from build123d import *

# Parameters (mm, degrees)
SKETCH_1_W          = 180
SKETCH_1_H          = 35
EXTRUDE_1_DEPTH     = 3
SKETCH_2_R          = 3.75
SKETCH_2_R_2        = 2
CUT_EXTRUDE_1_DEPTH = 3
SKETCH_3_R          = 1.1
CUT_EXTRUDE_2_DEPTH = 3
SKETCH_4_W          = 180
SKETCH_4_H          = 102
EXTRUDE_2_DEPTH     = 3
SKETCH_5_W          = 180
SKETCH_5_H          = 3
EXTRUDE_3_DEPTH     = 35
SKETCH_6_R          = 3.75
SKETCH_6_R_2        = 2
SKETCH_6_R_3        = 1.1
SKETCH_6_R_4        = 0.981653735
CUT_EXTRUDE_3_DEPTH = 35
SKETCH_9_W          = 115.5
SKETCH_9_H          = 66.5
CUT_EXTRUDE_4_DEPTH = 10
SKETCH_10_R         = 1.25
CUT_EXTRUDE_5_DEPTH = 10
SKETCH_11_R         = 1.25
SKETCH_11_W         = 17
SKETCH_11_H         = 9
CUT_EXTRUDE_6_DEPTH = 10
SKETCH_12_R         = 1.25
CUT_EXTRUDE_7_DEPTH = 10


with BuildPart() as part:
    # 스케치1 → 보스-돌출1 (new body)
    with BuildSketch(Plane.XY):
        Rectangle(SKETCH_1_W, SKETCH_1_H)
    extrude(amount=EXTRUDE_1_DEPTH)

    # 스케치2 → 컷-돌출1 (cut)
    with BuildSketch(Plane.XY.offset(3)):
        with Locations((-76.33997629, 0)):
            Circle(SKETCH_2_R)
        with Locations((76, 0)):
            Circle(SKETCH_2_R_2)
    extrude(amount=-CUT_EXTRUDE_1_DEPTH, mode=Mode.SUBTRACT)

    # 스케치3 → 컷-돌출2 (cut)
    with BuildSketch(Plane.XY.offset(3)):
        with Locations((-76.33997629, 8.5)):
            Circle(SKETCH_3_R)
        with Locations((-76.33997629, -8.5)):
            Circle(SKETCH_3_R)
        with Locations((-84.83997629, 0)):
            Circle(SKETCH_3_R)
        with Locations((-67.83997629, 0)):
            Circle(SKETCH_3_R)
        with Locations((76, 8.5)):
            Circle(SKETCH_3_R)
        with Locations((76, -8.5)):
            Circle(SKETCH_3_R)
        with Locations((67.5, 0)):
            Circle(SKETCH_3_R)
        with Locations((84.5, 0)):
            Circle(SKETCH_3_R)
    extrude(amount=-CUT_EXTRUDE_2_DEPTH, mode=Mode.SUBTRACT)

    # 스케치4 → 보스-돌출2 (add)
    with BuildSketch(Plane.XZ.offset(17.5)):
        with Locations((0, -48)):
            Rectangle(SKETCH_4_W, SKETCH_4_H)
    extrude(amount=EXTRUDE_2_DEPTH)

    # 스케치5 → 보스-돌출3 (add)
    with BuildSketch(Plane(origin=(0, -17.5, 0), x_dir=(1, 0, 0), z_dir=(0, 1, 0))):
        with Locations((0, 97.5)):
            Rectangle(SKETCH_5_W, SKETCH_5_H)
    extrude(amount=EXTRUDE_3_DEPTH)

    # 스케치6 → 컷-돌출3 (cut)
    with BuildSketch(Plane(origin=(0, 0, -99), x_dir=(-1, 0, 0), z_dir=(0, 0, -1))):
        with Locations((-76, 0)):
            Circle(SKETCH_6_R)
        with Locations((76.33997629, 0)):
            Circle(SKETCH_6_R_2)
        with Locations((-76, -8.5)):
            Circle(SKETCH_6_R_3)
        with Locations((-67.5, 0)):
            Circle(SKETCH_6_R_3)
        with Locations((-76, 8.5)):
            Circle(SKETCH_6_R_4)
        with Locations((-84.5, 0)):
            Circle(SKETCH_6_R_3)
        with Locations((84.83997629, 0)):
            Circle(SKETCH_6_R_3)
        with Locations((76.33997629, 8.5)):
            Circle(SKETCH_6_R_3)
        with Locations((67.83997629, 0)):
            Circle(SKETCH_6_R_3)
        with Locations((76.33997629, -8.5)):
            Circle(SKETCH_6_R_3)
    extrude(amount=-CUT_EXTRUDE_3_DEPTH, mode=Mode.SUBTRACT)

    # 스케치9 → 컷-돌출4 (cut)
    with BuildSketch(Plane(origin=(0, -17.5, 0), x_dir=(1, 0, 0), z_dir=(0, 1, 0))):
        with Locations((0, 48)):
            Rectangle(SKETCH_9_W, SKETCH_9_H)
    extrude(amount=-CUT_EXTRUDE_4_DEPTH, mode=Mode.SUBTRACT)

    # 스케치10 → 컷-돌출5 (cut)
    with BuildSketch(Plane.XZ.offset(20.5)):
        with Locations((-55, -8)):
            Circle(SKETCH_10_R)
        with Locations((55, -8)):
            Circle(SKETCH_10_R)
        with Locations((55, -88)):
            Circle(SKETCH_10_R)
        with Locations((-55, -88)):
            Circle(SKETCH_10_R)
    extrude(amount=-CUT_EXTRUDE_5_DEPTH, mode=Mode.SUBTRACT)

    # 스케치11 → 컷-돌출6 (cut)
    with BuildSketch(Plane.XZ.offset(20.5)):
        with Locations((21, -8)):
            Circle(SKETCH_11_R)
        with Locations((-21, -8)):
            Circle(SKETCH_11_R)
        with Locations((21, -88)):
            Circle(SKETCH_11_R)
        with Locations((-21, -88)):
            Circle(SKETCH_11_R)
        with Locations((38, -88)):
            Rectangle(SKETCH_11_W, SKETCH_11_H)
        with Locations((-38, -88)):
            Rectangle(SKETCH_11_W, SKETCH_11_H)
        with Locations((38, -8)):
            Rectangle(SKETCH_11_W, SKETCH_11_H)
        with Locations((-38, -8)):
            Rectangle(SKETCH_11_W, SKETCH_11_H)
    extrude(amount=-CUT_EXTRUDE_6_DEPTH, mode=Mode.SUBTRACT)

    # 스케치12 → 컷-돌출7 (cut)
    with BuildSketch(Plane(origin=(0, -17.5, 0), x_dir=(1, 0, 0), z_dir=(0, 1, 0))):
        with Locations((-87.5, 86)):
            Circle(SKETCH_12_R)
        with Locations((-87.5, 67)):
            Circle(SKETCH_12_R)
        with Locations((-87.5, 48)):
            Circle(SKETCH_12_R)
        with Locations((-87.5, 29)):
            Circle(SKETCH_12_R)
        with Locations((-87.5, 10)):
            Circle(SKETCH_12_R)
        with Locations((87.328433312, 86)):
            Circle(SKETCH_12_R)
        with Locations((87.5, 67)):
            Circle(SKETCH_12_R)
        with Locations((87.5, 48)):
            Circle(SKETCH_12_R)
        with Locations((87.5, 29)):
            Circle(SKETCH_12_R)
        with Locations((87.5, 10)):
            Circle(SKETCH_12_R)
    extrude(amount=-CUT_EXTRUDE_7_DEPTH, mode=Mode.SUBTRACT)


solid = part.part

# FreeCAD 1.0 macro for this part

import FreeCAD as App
import Part
import Sketcher

V = App.Vector
Q = App.Units.Quantity


def add_polygon(sketch, points):
    """Adds a closed chain of lines whose ends are joined by coincident constraints."""
    first, n = sketch.GeometryCount, len(points)
    for a, b in zip(points, points[1:] + points[:1]):
        sketch.addGeometry(Part.LineSegment(App.Vector(*a, 0), App.Vector(*b, 0)), False)
    for i in range(n):
        sketch.addConstraint(Sketcher.Constraint("Coincident", first + i, 2, first + (i + 1) % n, 1))

doc = App.newDocument("Part")
body = doc.addObject("PartDesign::Body", "Body")

# Sketch on XY plane
sketch1 = body.newObject("Sketcher::SketchObject", "Sketch")
sketch1.AttachmentSupport = (doc.getObject("XY_Plane"), [""])
sketch1.MapMode = "FlatFace"
add_polygon(sketch1, [(-90, 18), (-90, -18), (90, -18), (90, 18)])  # lines 0-3
sketch1.addConstraint(Sketcher.Constraint("Vertical", 0))
sketch1.addConstraint(Sketcher.Constraint("Horizontal", 1))
sketch1.addConstraint(Sketcher.Constraint("Vertical", 2))
sketch1.addConstraint(Sketcher.Constraint("Horizontal", 3))
sketch1.addConstraint(Sketcher.Constraint("Symmetric", 0, 2, 2, 2, -1, 1))
sketch1.addConstraint(Sketcher.Constraint("DistanceX", 1, 1, 1, 2, Q("180 mm")))
sketch1.addConstraint(Sketcher.Constraint("DistanceY", 0, 2, 0, 1, Q("35 mm")))
pad1 = body.newObject("PartDesign::Pad", "Pad")
pad1.Profile = sketch1
pad1.Length = 3

# Sketch on XY plane
sketch2 = body.newObject("Sketcher::SketchObject", "Sketch001")
sketch2.AttachmentSupport = (doc.getObject("XY_Plane"), [""])
sketch2.MapMode = "FlatFace"
sketch2.AttachmentOffset = App.Placement(V(0, 0, 3), App.Rotation())
sketch2.addGeometry(Part.Circle(V(-76.3, 0, 0), V(0, 0, 1), 3.8), False)
sketch2.addGeometry(Part.Circle(V(76, 0, 0), V(0, 0, 1), 2), False)
sketch2.addConstraint(Sketcher.Constraint("PointOnObject", 0, 3, -1))
sketch2.addConstraint(Sketcher.Constraint("PointOnObject", 1, 3, -1))
sketch2.addConstraint(Sketcher.Constraint("Diameter", 1, Q("4 mm")))
sketch2.addConstraint(Sketcher.Constraint("Diameter", 0, Q("7.5 mm")))
sketch2.addConstraint(Sketcher.Constraint("DistanceX", -1, 1, 1, 3, Q("76 mm")))
sketch2.addConstraint(Sketcher.Constraint("DistanceX", 0, 3, -1, 1, Q("76.339976 mm")))
pocket1 = body.newObject("PartDesign::Pocket", "Pocket")
pocket1.Profile = sketch2
pocket1.Length = 3

# Sketch on XY plane
sketch3 = body.newObject("Sketcher::SketchObject", "Sketch002")
sketch3.AttachmentSupport = (doc.getObject("XY_Plane"), [""])
sketch3.MapMode = "FlatFace"
sketch3.AttachmentOffset = App.Placement(V(0, 0, 3), App.Rotation())
sketch3.addGeometry(Part.Circle(V(-76.3, 8.5, 0), V(0, 0, 1), 1.1), False)
sketch3.addGeometry(Part.Circle(V(-76.3, -8.5, 0), V(0, 0, 1), 1.1), False)
sketch3.addGeometry(Part.Circle(V(-84.8, 0, 0), V(0, 0, 1), 1.1), False)
sketch3.addGeometry(Part.Circle(V(-67.8, 0, 0), V(0, 0, 1), 1.1), False)
sketch3.addGeometry(Part.Circle(V(76, 8.5, 0), V(0, 0, 1), 1.1), False)
sketch3.addGeometry(Part.Circle(V(76, -8.5, 0), V(0, 0, 1), 1.1), False)
sketch3.addGeometry(Part.Circle(V(67.5, 0, 0), V(0, 0, 1), 1.1), False)
sketch3.addGeometry(Part.Circle(V(84.5, 0, 0), V(0, 0, 1), 1.1), False)
sketch3.addConstraint(Sketcher.Constraint("Equal", 0, 1))
sketch3.addConstraint(Sketcher.Constraint("Equal", 1, 2))
sketch3.addConstraint(Sketcher.Constraint("Equal", 2, 3))
sketch3.addConstraint(Sketcher.Constraint("Equal", 3, 4))
sketch3.addConstraint(Sketcher.Constraint("Equal", 4, 5))
sketch3.addConstraint(Sketcher.Constraint("Equal", 5, 6))
sketch3.addConstraint(Sketcher.Constraint("Equal", 6, 7))
sketch3.addConstraint(Sketcher.Constraint("Symmetric", 0, 3, 1, 3, -1))
sketch3.addConstraint(Sketcher.Constraint("Symmetric", 4, 3, 5, 3, -1))
sketch3.addConstraint(Sketcher.Constraint("PointOnObject", 2, 3, -1))
sketch3.addConstraint(Sketcher.Constraint("PointOnObject", 3, 3, -1))
sketch3.addConstraint(Sketcher.Constraint("PointOnObject", 6, 3, -1))
sketch3.addConstraint(Sketcher.Constraint("PointOnObject", 7, 3, -1))
sketch3.addConstraint(Sketcher.Constraint("Horizontal", 0, 3, 4, 3))
sketch3.addConstraint(Sketcher.Constraint("Diameter", 0, Q("2.2 mm")))
sketch3.addConstraint(Sketcher.Constraint("DistanceX", -1, 1, 4, 3, Q("76 mm")))
sketch3.addConstraint(Sketcher.Constraint("DistanceY", 1, 3, 0, 3, Q("17 mm")))
sketch3.addConstraint(Sketcher.Constraint("DistanceX", 2, 3, 3, 3, Q("17 mm")))
sketch3.addConstraint(Sketcher.Constraint("DistanceX", 6, 3, 7, 3, Q("17 mm")))
sketch3.addConstraint(Sketcher.Constraint("DistanceX", -1, 1, 6, 3, Q("67.5 mm")))
sketch3.addConstraint(Sketcher.Constraint("DistanceX", 2, 3, 0, 3, Q("8.5 mm")))
sketch3.addConstraint(Sketcher.Constraint("DistanceX", 0, 3, -1, 1, Q("76.339976 mm")))
pocket2 = body.newObject("PartDesign::Pocket", "Pocket001")
pocket2.Profile = sketch3
pocket2.Length = 3

# Sketch on XZ plane
sketch4 = body.newObject("Sketcher::SketchObject", "Sketch003")
sketch4.AttachmentSupport = (doc.getObject("XZ_Plane"), [""])
sketch4.MapMode = "FlatFace"
sketch4.AttachmentOffset = App.Placement(V(0, 0, 17.5), App.Rotation())
add_polygon(sketch4, [(-90, 3), (-90, -99), (90, -99), (90, 3)])  # lines 0-3
sketch4.addConstraint(Sketcher.Constraint("Vertical", 0))
sketch4.addConstraint(Sketcher.Constraint("Horizontal", 1))
sketch4.addConstraint(Sketcher.Constraint("Vertical", 2))
sketch4.addConstraint(Sketcher.Constraint("Horizontal", 3))
sketch4.addConstraint(Sketcher.Constraint("DistanceX", 1, 1, 1, 2, Q("180 mm")))
sketch4.addConstraint(Sketcher.Constraint("DistanceY", 0, 2, 0, 1, Q("102 mm")))
sketch4.addConstraint(Sketcher.Constraint("DistanceX", 0, 2, -1, 1, Q("90 mm")))
sketch4.addConstraint(Sketcher.Constraint("DistanceY", 0, 2, -1, 1, Q("99 mm")))
pad2 = body.newObject("PartDesign::Pad", "Pad001")
pad2.Profile = sketch4
pad2.Length = 3

# Sketch on XZ plane
sketch5 = body.newObject("Sketcher::SketchObject", "Sketch004")
sketch5.AttachmentSupport = (doc.getObject("XZ_Plane"), [""])
sketch5.MapMode = "FlatFace"
sketch5.AttachmentOffset = App.Placement(V(0, 0, 17.5), App.Rotation())
add_polygon(sketch5, [(-90, -99), (-90, -96), (90, -96), (90, -99)])  # lines 0-3
sketch5.addConstraint(Sketcher.Constraint("Vertical", 0))
sketch5.addConstraint(Sketcher.Constraint("Horizontal", 1))
sketch5.addConstraint(Sketcher.Constraint("Vertical", 2))
sketch5.addConstraint(Sketcher.Constraint("Horizontal", 3))
sketch5.addConstraint(Sketcher.Constraint("DistanceX", 1, 1, 1, 2, Q("180 mm")))
sketch5.addConstraint(Sketcher.Constraint("DistanceY", 0, 1, 0, 2, Q("3 mm")))
sketch5.addConstraint(Sketcher.Constraint("DistanceX", 0, 2, -1, 1, Q("90 mm")))
sketch5.addConstraint(Sketcher.Constraint("DistanceY", 0, 2, -1, 1, Q("96 mm")))
pad3 = body.newObject("PartDesign::Pad", "Pad002")
pad3.Profile = sketch5
pad3.Length = 35
pad3.Reversed = True

# Sketch on XY plane
sketch6 = body.newObject("Sketcher::SketchObject", "Sketch005")
sketch6.AttachmentSupport = (doc.getObject("XY_Plane"), [""])
sketch6.MapMode = "FlatFace"
sketch6.AttachmentOffset = App.Placement(V(0, 0, -99), App.Rotation())
sketch6.addGeometry(Part.Circle(V(76, 0, 0), V(0, 0, 1), 3.8), False)
sketch6.addGeometry(Part.Circle(V(-76.3, 0, 0), V(0, 0, 1), 2), False)
sketch6.addGeometry(Part.Circle(V(76, -8.5, 0), V(0, 0, 1), 1.1), False)
sketch6.addGeometry(Part.Circle(V(67.5, 0, 0), V(0, 0, 1), 1.1), False)
sketch6.addGeometry(Part.Circle(V(76, 8.5, 0), V(0, 0, 1), 1), False)
sketch6.addGeometry(Part.Circle(V(84.5, 0, 0), V(0, 0, 1), 1.1), False)
sketch6.addGeometry(Part.Circle(V(-84.8, 0, 0), V(0, 0, 1), 1.1), False)
sketch6.addGeometry(Part.Circle(V(-76.3, 8.5, 0), V(0, 0, 1), 1.1), False)
sketch6.addGeometry(Part.Circle(V(-67.8, 0, 0), V(0, 0, 1), 1.1), False)
sketch6.addGeometry(Part.Circle(V(-76.3, -8.5, 0), V(0, 0, 1), 1.1), False)
sketch6.addConstraint(Sketcher.Constraint("Equal", 2, 3))
sketch6.addConstraint(Sketcher.Constraint("Equal", 3, 5))
sketch6.addConstraint(Sketcher.Constraint("Equal", 5, 6))
sketch6.addConstraint(Sketcher.Constraint("Equal", 6, 7))
sketch6.addConstraint(Sketcher.Constraint("Equal", 7, 8))
sketch6.addConstraint(Sketcher.Constraint("Equal", 8, 9))
sketch6.addConstraint(Sketcher.Constraint("Symmetric", 2, 3, 4, 3, -1))
sketch6.addConstraint(Sketcher.Constraint("Symmetric", 7, 3, 9, 3, -1))
sketch6.addConstraint(Sketcher.Constraint("PointOnObject", 0, 3, -1))
sketch6.addConstraint(Sketcher.Constraint("PointOnObject", 1, 3, -1))
sketch6.addConstraint(Sketcher.Constraint("PointOnObject", 3, 3, -1))
sketch6.addConstraint(Sketcher.Constraint("PointOnObject", 5, 3, -1))
sketch6.addConstraint(Sketcher.Constraint("PointOnObject", 6, 3, -1))
sketch6.addConstraint(Sketcher.Constraint("PointOnObject", 8, 3, -1))
sketch6.addConstraint(Sketcher.Constraint("Horizontal", 4, 3, 7, 3))
sketch6.addConstraint(Sketcher.Constraint("Vertical", 0, 3, 2, 3))
sketch6.addConstraint(Sketcher.Constraint("Vertical", 1, 3, 7, 3))
sketch6.addConstraint(Sketcher.Constraint("Diameter", 1, Q("4 mm")))
sketch6.addConstraint(Sketcher.Constraint("Diameter", 0, Q("7.5 mm")))
sketch6.addConstraint(Sketcher.Constraint("Diameter", 2, Q("2.2 mm")))
sketch6.addConstraint(Sketcher.Constraint("DistanceX", -1, 1, 0, 3, Q("76 mm")))
sketch6.addConstraint(Sketcher.Constraint("DistanceY", 2, 3, 4, 3, Q("17 mm")))
sketch6.addConstraint(Sketcher.Constraint("DistanceX", 3, 3, 5, 3, Q("17 mm")))
sketch6.addConstraint(Sketcher.Constraint("DistanceX", 6, 3, 8, 3, Q("17 mm")))
sketch6.addConstraint(Sketcher.Constraint("DistanceX", -1, 1, 3, 3, Q("67.5 mm")))
sketch6.addConstraint(Sketcher.Constraint("DistanceX", 6, 3, 1, 3, Q("8.5 mm")))
sketch6.addConstraint(Sketcher.Constraint("Diameter", 4, Q("1.963307 mm")))
sketch6.addConstraint(Sketcher.Constraint("DistanceX", 1, 3, -1, 1, Q("76.339976 mm")))
pocket3 = body.newObject("PartDesign::Pocket", "Pocket002")
pocket3.Profile = sketch6
pocket3.Length = 35
pocket3.Reversed = True

# Sketch on XZ plane
sketch7 = body.newObject("Sketcher::SketchObject", "Sketch006")
sketch7.AttachmentSupport = (doc.getObject("XZ_Plane"), [""])
sketch7.MapMode = "FlatFace"
sketch7.AttachmentOffset = App.Placement(V(0, 0, 17.5), App.Rotation())
add_polygon(sketch7, [(-58, -81), (-58, -15), (58, -15), (58, -81)])  # lines 0-3
sketch7.addConstraint(Sketcher.Constraint("Vertical", 0))
sketch7.addConstraint(Sketcher.Constraint("Horizontal", 1))
sketch7.addConstraint(Sketcher.Constraint("Vertical", 2))
sketch7.addConstraint(Sketcher.Constraint("Horizontal", 3))
sketch7.addConstraint(Sketcher.Constraint("DistanceX", 1, 1, 1, 2, Q("115.5 mm")))
sketch7.addConstraint(Sketcher.Constraint("DistanceY", 0, 1, 0, 2, Q("66.5 mm")))
sketch7.addConstraint(Sketcher.Constraint("DistanceX", 0, 2, -1, 1, Q("57.75 mm")))
sketch7.addConstraint(Sketcher.Constraint("DistanceY", 0, 2, -1, 1, Q("14.75 mm")))
pocket4 = body.newObject("PartDesign::Pocket", "Pocket003")
pocket4.Profile = sketch7
pocket4.Length = 10
pocket4.Reversed = True

# Sketch on XZ plane
sketch8 = body.newObject("Sketcher::SketchObject", "Sketch007")
sketch8.AttachmentSupport = (doc.getObject("XZ_Plane"), [""])
sketch8.MapMode = "FlatFace"
sketch8.AttachmentOffset = App.Placement(V(0, 0, 20.5), App.Rotation())
sketch8.addGeometry(Part.Circle(V(-55, -8, 0), V(0, 0, 1), 1.2), False)
sketch8.addGeometry(Part.Circle(V(55, -8, 0), V(0, 0, 1), 1.2), False)
sketch8.addGeometry(Part.Circle(V(55, -88, 0), V(0, 0, 1), 1.2), False)
sketch8.addGeometry(Part.Circle(V(-55, -88, 0), V(0, 0, 1), 1.2), False)
sketch8.addConstraint(Sketcher.Constraint("Equal", 0, 1))
sketch8.addConstraint(Sketcher.Constraint("Equal", 1, 2))
sketch8.addConstraint(Sketcher.Constraint("Equal", 2, 3))
sketch8.addConstraint(Sketcher.Constraint("Symmetric", 0, 3, 1, 3, -2))
sketch8.addConstraint(Sketcher.Constraint("Symmetric", 2, 3, 3, 3, -2))
sketch8.addConstraint(Sketcher.Constraint("Vertical", 1, 3, 2, 3))
sketch8.addConstraint(Sketcher.Constraint("Diameter", 0, Q("2.5 mm")))
sketch8.addConstraint(Sketcher.Constraint("DistanceX", 0, 3, -1, 1, Q("55 mm")))
sketch8.addConstraint(Sketcher.Constraint("DistanceY", 0, 3, -1, 1, Q("8 mm")))
sketch8.addConstraint(Sketcher.Constraint("DistanceY", 2, 3, -1, 1, Q("88 mm")))
pocket5 = body.newObject("PartDesign::Pocket", "Pocket004")
pocket5.Profile = sketch8
pocket5.Length = 10

# Sketch on XZ plane
sketch9 = body.newObject("Sketcher::SketchObject", "Sketch008")
sketch9.AttachmentSupport = (doc.getObject("XZ_Plane"), [""])
sketch9.MapMode = "FlatFace"
sketch9.AttachmentOffset = App.Placement(V(0, 0, 20.5), App.Rotation())
sketch9.addGeometry(Part.Circle(V(21, -8, 0), V(0, 0, 1), 1.2), False)  # 0
sketch9.addGeometry(Part.Circle(V(-21, -8, 0), V(0, 0, 1), 1.2), False)  # 1
sketch9.addGeometry(Part.Circle(V(21, -88, 0), V(0, 0, 1), 1.2), False)  # 2
sketch9.addGeometry(Part.Circle(V(-21, -88, 0), V(0, 0, 1), 1.2), False)  # 3
add_polygon(sketch9, [(29.5, -83.5), (29.5, -92.5), (46.5, -92.5), (46.5, -83.5)])  # lines 4-7
add_polygon(sketch9, [(-46.5, -83.5), (-46.5, -92.5), (-29.5, -92.5), (-29.5, -83.5)])  # lines 8-11
add_polygon(sketch9, [(29.5, -3.5), (29.5, -12.5), (46.5, -12.5), (46.5, -3.5)])  # lines 12-15
add_polygon(sketch9, [(-46.5, -3.5), (-46.5, -12.5), (-29.5, -12.5), (-29.5, -3.5)])  # lines 16-19
sketch9.addConstraint(Sketcher.Constraint("Vertical", 4))
sketch9.addConstraint(Sketcher.Constraint("Horizontal", 5))
sketch9.addConstraint(Sketcher.Constraint("Vertical", 6))
sketch9.addConstraint(Sketcher.Constraint("Horizontal", 7))
sketch9.addConstraint(Sketcher.Constraint("Vertical", 8))
sketch9.addConstraint(Sketcher.Constraint("Horizontal", 9))
sketch9.addConstraint(Sketcher.Constraint("Vertical", 10))
sketch9.addConstraint(Sketcher.Constraint("Horizontal", 11))
sketch9.addConstraint(Sketcher.Constraint("Vertical", 12))
sketch9.addConstraint(Sketcher.Constraint("Horizontal", 13))
sketch9.addConstraint(Sketcher.Constraint("Vertical", 14))
sketch9.addConstraint(Sketcher.Constraint("Horizontal", 15))
sketch9.addConstraint(Sketcher.Constraint("Vertical", 16))
sketch9.addConstraint(Sketcher.Constraint("Horizontal", 17))
sketch9.addConstraint(Sketcher.Constraint("Vertical", 18))
sketch9.addConstraint(Sketcher.Constraint("Horizontal", 19))
sketch9.addConstraint(Sketcher.Constraint("Equal", 0, 1))
sketch9.addConstraint(Sketcher.Constraint("Equal", 1, 2))
sketch9.addConstraint(Sketcher.Constraint("Equal", 2, 3))
sketch9.addConstraint(Sketcher.Constraint("Symmetric", 0, 3, 1, 3, -2))
sketch9.addConstraint(Sketcher.Constraint("Symmetric", 2, 3, 3, 3, -2))
sketch9.addConstraint(Sketcher.Constraint("Symmetric", 5, 2, 8, 2, -2))
sketch9.addConstraint(Sketcher.Constraint("Symmetric", 7, 2, 10, 2, -2))
sketch9.addConstraint(Sketcher.Constraint("Symmetric", 13, 2, 16, 2, -2))
sketch9.addConstraint(Sketcher.Constraint("Symmetric", 15, 2, 18, 2, -2))
sketch9.addConstraint(Sketcher.Constraint("Vertical", 0, 3, 2, 3))
sketch9.addConstraint(Sketcher.Constraint("Vertical", 7, 2, 12, 2))
sketch9.addConstraint(Sketcher.Constraint("Vertical", 6, 2, 13, 2))
sketch9.addConstraint(Sketcher.Constraint("Equal", 10, 12))
sketch9.addConstraint(Sketcher.Constraint("Diameter", 0, Q("2.5 mm")))
sketch9.addConstraint(Sketcher.Constraint("DistanceX", 5, 1, 5, 2, Q("17 mm")))
sketch9.addConstraint(Sketcher.Constraint("DistanceY", 4, 2, 4, 1, Q("9 mm")))
sketch9.addConstraint(Sketcher.Constraint("DistanceX", -1, 1, 0, 3, Q("21 mm")))
sketch9.addConstraint(Sketcher.Constraint("DistanceY", 0, 3, -1, 1, Q("8 mm")))
sketch9.addConstraint(Sketcher.Constraint("DistanceY", 2, 3, -1, 1, Q("88 mm")))
sketch9.addConstraint(Sketcher.Constraint("DistanceX", 8, 2, 4, 2, Q("76 mm")))
sketch9.addConstraint(Sketcher.Constraint("DistanceY", 7, 2, 12, 2, Q("71 mm")))
sketch9.addConstraint(Sketcher.Constraint("DistanceY", 4, 2, -1, 1, Q("92.5 mm")))
pocket6 = body.newObject("PartDesign::Pocket", "Pocket005")
pocket6.Profile = sketch9
pocket6.Length = 10

# Sketch on XZ plane
sketch10 = body.newObject("Sketcher::SketchObject", "Sketch009")
sketch10.AttachmentSupport = (doc.getObject("XZ_Plane"), [""])
sketch10.MapMode = "FlatFace"
sketch10.AttachmentOffset = App.Placement(V(0, 0, 17.5), App.Rotation())
sketch10.addGeometry(Part.Circle(V(-87.5, -86, 0), V(0, 0, 1), 1.2), False)
sketch10.addGeometry(Part.Circle(V(-87.5, -67, 0), V(0, 0, 1), 1.2), False)
sketch10.addGeometry(Part.Circle(V(-87.5, -48, 0), V(0, 0, 1), 1.2), False)
sketch10.addGeometry(Part.Circle(V(-87.5, -29, 0), V(0, 0, 1), 1.2), False)
sketch10.addGeometry(Part.Circle(V(-87.5, -10, 0), V(0, 0, 1), 1.2), False)
sketch10.addGeometry(Part.Circle(V(87.3, -86, 0), V(0, 0, 1), 1.2), False)
sketch10.addGeometry(Part.Circle(V(87.5, -67, 0), V(0, 0, 1), 1.2), False)
sketch10.addGeometry(Part.Circle(V(87.5, -48, 0), V(0, 0, 1), 1.2), False)
sketch10.addGeometry(Part.Circle(V(87.5, -29, 0), V(0, 0, 1), 1.2), False)
sketch10.addGeometry(Part.Circle(V(87.5, -10, 0), V(0, 0, 1), 1.2), False)
sketch10.addConstraint(Sketcher.Constraint("Equal", 0, 1))
sketch10.addConstraint(Sketcher.Constraint("Equal", 1, 2))
sketch10.addConstraint(Sketcher.Constraint("Equal", 2, 3))
sketch10.addConstraint(Sketcher.Constraint("Equal", 3, 4))
sketch10.addConstraint(Sketcher.Constraint("Equal", 4, 5))
sketch10.addConstraint(Sketcher.Constraint("Equal", 5, 6))
sketch10.addConstraint(Sketcher.Constraint("Equal", 6, 7))
sketch10.addConstraint(Sketcher.Constraint("Equal", 7, 8))
sketch10.addConstraint(Sketcher.Constraint("Equal", 8, 9))
sketch10.addConstraint(Sketcher.Constraint("Symmetric", 1, 3, 6, 3, -2))
sketch10.addConstraint(Sketcher.Constraint("Symmetric", 2, 3, 7, 3, -2))
sketch10.addConstraint(Sketcher.Constraint("Symmetric", 3, 3, 8, 3, -2))
sketch10.addConstraint(Sketcher.Constraint("Symmetric", 4, 3, 9, 3, -2))
sketch10.addConstraint(Sketcher.Constraint("Horizontal", 0, 3, 5, 3))
sketch10.addConstraint(Sketcher.Constraint("Vertical", 0, 3, 1, 3))
sketch10.addConstraint(Sketcher.Constraint("Vertical", 1, 3, 2, 3))
sketch10.addConstraint(Sketcher.Constraint("Vertical", 2, 3, 3, 3))
sketch10.addConstraint(Sketcher.Constraint("Vertical", 3, 3, 4, 3))
sketch10.addConstraint(Sketcher.Constraint("Diameter", 0, Q("2.5 mm")))
sketch10.addConstraint(Sketcher.Constraint("DistanceY", 0, 3, -1, 1, Q("86 mm")))
sketch10.addConstraint(Sketcher.Constraint("DistanceY", 1, 3, -1, 1, Q("67 mm")))
sketch10.addConstraint(Sketcher.Constraint("DistanceY", 2, 3, -1, 1, Q("48 mm")))
sketch10.addConstraint(Sketcher.Constraint("DistanceY", 3, 3, -1, 1, Q("29 mm")))
sketch10.addConstraint(Sketcher.Constraint("DistanceY", 4, 3, -1, 1, Q("10 mm")))
sketch10.addConstraint(Sketcher.Constraint("DistanceX", 1, 3, 6, 3, Q("175 mm")))
sketch10.addConstraint(Sketcher.Constraint("DistanceX", -1, 1, 5, 3, Q("87.328433 mm")))
pocket7 = body.newObject("PartDesign::Pocket", "Pocket006")
pocket7.Profile = sketch10
pocket7.Length = 10
pocket7.Reversed = True

doc.recompute()
